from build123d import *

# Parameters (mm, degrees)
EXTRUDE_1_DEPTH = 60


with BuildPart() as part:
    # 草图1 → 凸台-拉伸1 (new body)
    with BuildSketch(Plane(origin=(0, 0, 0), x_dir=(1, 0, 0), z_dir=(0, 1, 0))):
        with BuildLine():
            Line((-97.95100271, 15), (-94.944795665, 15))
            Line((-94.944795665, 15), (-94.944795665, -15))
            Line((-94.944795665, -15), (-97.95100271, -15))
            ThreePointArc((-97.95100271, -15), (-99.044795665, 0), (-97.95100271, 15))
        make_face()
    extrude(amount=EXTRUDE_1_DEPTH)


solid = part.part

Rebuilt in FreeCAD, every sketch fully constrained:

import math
import FreeCAD as App
import Part
import Sketcher
from FreeCAD import Vector

doc = App.newDocument("Part")
body = doc.addObject("PartDesign::Body", "Body")

sketch1 = body.newObject("Sketcher::SketchObject", "Sketch")
sketch1.AttachmentSupport = (doc.getObject("XZ_Plane"), [""])
sketch1.MapMode = "FlatFace"
sketch1.addGeometry([
    Part.LineSegment(Vector(-94.9, -15, 0), Vector(-98, -15, 0)),
    Part.ArcOfCircle(Part.Circle(Vector(4.4, 0, 0), Vector(0, 0, 1), 103.4), math.radians(171.66), math.radians(188.34)),
    Part.LineSegment(Vector(-98, 15, 0), Vector(-94.9, 15, 0)),
    Part.LineSegment(Vector(-94.9, 15, 0), Vector(-94.9, -15, 0)),
], False)
sketch1.addConstraint([
    Sketcher.Constraint("Coincident", 0, 2, 1, 2),
    Sketcher.Constraint("Coincident", 1, 1, 2, 1),
    Sketcher.Constraint("Coincident", 2, 2, 3, 1),
    Sketcher.Constraint("Coincident", 3, 2, 0, 1),
    Sketcher.Constraint("Horizontal", 0),
    Sketcher.Constraint("Horizontal", 2),
    Sketcher.Constraint("Vertical", 3),
    Sketcher.Constraint("Symmetric", 0, 2, 1, 1, -1),
    Sketcher.Constraint("Radius", 1, 103.4),
    Sketcher.Constraint("DistanceY", 3, 2, 3, 1, 30.0),
    Sketcher.Constraint("DistanceX", 2, 2, 1, 3, 99.3),
    Sketcher.Constraint("DistanceX", -1, 1, 1, 3, 4.355204),
])
pad1 = body.newObject("PartDesign::Pad", "Pad")
pad1.Profile = sketch1
pad1.Length = 60
pad1.Reversed = True

doc.recompute()
